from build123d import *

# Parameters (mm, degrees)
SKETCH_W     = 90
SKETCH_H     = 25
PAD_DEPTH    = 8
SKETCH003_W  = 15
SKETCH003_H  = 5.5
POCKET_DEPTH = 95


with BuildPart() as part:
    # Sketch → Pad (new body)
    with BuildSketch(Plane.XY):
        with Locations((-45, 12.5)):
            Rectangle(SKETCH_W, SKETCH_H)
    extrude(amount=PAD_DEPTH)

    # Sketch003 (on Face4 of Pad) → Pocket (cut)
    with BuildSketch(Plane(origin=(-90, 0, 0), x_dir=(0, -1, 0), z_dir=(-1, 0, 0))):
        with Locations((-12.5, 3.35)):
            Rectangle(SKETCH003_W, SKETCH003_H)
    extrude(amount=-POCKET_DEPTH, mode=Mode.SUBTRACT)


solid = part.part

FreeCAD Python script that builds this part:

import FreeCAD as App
import Part
import Sketcher
from FreeCAD import Vector
Q = App.Units.Quantity

doc = App.newDocument("Part")
body = doc.addObject("PartDesign::Body", "Body")

sketch1 = body.newObject("Sketcher::SketchObject", "Sketch")
sketch1.AttachmentSupport = (doc.getObject("XY_Plane"), [""])
sketch1.MapMode = "FlatFace"
sketch1.addGeometry(Part.LineSegment(Vector(-90, 25, 0), Vector(-90, 0, 0)), False)
sketch1.addGeometry(Part.LineSegment(Vector(-90, 0, 0), Vector(0, 0, 0)), False)
sketch1.addGeometry(Part.LineSegment(Vector(0, 0, 0), Vector(0, 25, 0)), False)
sketch1.addGeometry(Part.LineSegment(Vector(0, 25, 0), Vector(-90, 25, 0)), False)
sketch1.addConstraint(Sketcher.Constraint("Coincident", 0, 2, 1, 1))
sketch1.addConstraint(Sketcher.Constraint("Coincident", 1, 2, 2, 1))
sketch1.addConstraint(Sketcher.Constraint("Coincident", 2, 2, 3, 1))
sketch1.addConstraint(Sketcher.Constraint("Coincident", 3, 2, 0, 1))
sketch1.addConstraint(Sketcher.Constraint("Vertical", 0))
sketch1.addConstraint(Sketcher.Constraint("Horizontal", 1))
sketch1.addConstraint(Sketcher.Constraint("Vertical", 2))
sketch1.addConstraint(Sketcher.Constraint("Horizontal", 3))
sketch1.addConstraint(Sketcher.Constraint("Coincident", 1, 2, -1, 1))
sketch1.addConstraint(Sketcher.Constraint("DistanceX", 1, 1, 1, 2, Q("90 mm")))
sketch1.addConstraint(Sketcher.Constraint("DistanceY", 0, 2, 0, 1, Q("25 mm")))
pad1 = body.newObject("PartDesign::Pad", "Pad")
pad1.Profile = sketch1
pad1.Length = 8

sketch2 = body.newObject("Sketcher::SketchObject", "Sketch001")
sketch2.AttachmentSupport = (doc.getObject("YZ_Plane"), [""])
sketch2.MapMode = "FlatFace"
sketch2.AttachmentOffset = App.Placement(Vector(0, 0, -90), App.Rotation())
sketch2.addGeometry(Part.LineSegment(Vector(20, 6, 0), Vector(20, 1, 0)), False)
sketch2.addGeometry(Part.LineSegment(Vector(20, 1, 0), Vector(5, 1, 0)), False)
sketch2.addGeometry(Part.LineSegment(Vector(5, 1, 0), Vector(5, 6, 0)), False)
sketch2.addGeometry(Part.LineSegment(Vector(5, 6, 0), Vector(20, 6, 0)), False)
sketch2.addConstraint(Sketcher.Constraint("Coincident", 0, 2, 1, 1))
sketch2.addConstraint(Sketcher.Constraint("Coincident", 1, 2, 2, 1))
sketch2.addConstraint(Sketcher.Constraint("Coincident", 2, 2, 3, 1))
sketch2.addConstraint(Sketcher.Constraint("Coincident", 3, 2, 0, 1))
sketch2.addConstraint(Sketcher.Constraint("Vertical", 0))
sketch2.addConstraint(Sketcher.Constraint("Horizontal", 1))
sketch2.addConstraint(Sketcher.Constraint("Vertical", 2))
sketch2.addConstraint(Sketcher.Constraint("Horizontal", 3))
sketch2.addConstraint(Sketcher.Constraint("DistanceX", 1, 2, 1, 1, Q("15 mm")))
sketch2.addConstraint(Sketcher.Constraint("DistanceY", 0, 2, 0, 1, Q("5.5 mm")))
sketch2.addConstraint(Sketcher.Constraint("DistanceX", -1, 1, 0, 2, Q("20 mm")))
sketch2.addConstraint(Sketcher.Constraint("DistanceY", -1, 1, 0, 2, Q("0.6 mm")))
pocket1 = body.newObject("PartDesign::Pocket", "Pocket")
pocket1.Profile = sketch2
pocket1.Length = 95
pocket1.Reversed = True

doc.recompute()
